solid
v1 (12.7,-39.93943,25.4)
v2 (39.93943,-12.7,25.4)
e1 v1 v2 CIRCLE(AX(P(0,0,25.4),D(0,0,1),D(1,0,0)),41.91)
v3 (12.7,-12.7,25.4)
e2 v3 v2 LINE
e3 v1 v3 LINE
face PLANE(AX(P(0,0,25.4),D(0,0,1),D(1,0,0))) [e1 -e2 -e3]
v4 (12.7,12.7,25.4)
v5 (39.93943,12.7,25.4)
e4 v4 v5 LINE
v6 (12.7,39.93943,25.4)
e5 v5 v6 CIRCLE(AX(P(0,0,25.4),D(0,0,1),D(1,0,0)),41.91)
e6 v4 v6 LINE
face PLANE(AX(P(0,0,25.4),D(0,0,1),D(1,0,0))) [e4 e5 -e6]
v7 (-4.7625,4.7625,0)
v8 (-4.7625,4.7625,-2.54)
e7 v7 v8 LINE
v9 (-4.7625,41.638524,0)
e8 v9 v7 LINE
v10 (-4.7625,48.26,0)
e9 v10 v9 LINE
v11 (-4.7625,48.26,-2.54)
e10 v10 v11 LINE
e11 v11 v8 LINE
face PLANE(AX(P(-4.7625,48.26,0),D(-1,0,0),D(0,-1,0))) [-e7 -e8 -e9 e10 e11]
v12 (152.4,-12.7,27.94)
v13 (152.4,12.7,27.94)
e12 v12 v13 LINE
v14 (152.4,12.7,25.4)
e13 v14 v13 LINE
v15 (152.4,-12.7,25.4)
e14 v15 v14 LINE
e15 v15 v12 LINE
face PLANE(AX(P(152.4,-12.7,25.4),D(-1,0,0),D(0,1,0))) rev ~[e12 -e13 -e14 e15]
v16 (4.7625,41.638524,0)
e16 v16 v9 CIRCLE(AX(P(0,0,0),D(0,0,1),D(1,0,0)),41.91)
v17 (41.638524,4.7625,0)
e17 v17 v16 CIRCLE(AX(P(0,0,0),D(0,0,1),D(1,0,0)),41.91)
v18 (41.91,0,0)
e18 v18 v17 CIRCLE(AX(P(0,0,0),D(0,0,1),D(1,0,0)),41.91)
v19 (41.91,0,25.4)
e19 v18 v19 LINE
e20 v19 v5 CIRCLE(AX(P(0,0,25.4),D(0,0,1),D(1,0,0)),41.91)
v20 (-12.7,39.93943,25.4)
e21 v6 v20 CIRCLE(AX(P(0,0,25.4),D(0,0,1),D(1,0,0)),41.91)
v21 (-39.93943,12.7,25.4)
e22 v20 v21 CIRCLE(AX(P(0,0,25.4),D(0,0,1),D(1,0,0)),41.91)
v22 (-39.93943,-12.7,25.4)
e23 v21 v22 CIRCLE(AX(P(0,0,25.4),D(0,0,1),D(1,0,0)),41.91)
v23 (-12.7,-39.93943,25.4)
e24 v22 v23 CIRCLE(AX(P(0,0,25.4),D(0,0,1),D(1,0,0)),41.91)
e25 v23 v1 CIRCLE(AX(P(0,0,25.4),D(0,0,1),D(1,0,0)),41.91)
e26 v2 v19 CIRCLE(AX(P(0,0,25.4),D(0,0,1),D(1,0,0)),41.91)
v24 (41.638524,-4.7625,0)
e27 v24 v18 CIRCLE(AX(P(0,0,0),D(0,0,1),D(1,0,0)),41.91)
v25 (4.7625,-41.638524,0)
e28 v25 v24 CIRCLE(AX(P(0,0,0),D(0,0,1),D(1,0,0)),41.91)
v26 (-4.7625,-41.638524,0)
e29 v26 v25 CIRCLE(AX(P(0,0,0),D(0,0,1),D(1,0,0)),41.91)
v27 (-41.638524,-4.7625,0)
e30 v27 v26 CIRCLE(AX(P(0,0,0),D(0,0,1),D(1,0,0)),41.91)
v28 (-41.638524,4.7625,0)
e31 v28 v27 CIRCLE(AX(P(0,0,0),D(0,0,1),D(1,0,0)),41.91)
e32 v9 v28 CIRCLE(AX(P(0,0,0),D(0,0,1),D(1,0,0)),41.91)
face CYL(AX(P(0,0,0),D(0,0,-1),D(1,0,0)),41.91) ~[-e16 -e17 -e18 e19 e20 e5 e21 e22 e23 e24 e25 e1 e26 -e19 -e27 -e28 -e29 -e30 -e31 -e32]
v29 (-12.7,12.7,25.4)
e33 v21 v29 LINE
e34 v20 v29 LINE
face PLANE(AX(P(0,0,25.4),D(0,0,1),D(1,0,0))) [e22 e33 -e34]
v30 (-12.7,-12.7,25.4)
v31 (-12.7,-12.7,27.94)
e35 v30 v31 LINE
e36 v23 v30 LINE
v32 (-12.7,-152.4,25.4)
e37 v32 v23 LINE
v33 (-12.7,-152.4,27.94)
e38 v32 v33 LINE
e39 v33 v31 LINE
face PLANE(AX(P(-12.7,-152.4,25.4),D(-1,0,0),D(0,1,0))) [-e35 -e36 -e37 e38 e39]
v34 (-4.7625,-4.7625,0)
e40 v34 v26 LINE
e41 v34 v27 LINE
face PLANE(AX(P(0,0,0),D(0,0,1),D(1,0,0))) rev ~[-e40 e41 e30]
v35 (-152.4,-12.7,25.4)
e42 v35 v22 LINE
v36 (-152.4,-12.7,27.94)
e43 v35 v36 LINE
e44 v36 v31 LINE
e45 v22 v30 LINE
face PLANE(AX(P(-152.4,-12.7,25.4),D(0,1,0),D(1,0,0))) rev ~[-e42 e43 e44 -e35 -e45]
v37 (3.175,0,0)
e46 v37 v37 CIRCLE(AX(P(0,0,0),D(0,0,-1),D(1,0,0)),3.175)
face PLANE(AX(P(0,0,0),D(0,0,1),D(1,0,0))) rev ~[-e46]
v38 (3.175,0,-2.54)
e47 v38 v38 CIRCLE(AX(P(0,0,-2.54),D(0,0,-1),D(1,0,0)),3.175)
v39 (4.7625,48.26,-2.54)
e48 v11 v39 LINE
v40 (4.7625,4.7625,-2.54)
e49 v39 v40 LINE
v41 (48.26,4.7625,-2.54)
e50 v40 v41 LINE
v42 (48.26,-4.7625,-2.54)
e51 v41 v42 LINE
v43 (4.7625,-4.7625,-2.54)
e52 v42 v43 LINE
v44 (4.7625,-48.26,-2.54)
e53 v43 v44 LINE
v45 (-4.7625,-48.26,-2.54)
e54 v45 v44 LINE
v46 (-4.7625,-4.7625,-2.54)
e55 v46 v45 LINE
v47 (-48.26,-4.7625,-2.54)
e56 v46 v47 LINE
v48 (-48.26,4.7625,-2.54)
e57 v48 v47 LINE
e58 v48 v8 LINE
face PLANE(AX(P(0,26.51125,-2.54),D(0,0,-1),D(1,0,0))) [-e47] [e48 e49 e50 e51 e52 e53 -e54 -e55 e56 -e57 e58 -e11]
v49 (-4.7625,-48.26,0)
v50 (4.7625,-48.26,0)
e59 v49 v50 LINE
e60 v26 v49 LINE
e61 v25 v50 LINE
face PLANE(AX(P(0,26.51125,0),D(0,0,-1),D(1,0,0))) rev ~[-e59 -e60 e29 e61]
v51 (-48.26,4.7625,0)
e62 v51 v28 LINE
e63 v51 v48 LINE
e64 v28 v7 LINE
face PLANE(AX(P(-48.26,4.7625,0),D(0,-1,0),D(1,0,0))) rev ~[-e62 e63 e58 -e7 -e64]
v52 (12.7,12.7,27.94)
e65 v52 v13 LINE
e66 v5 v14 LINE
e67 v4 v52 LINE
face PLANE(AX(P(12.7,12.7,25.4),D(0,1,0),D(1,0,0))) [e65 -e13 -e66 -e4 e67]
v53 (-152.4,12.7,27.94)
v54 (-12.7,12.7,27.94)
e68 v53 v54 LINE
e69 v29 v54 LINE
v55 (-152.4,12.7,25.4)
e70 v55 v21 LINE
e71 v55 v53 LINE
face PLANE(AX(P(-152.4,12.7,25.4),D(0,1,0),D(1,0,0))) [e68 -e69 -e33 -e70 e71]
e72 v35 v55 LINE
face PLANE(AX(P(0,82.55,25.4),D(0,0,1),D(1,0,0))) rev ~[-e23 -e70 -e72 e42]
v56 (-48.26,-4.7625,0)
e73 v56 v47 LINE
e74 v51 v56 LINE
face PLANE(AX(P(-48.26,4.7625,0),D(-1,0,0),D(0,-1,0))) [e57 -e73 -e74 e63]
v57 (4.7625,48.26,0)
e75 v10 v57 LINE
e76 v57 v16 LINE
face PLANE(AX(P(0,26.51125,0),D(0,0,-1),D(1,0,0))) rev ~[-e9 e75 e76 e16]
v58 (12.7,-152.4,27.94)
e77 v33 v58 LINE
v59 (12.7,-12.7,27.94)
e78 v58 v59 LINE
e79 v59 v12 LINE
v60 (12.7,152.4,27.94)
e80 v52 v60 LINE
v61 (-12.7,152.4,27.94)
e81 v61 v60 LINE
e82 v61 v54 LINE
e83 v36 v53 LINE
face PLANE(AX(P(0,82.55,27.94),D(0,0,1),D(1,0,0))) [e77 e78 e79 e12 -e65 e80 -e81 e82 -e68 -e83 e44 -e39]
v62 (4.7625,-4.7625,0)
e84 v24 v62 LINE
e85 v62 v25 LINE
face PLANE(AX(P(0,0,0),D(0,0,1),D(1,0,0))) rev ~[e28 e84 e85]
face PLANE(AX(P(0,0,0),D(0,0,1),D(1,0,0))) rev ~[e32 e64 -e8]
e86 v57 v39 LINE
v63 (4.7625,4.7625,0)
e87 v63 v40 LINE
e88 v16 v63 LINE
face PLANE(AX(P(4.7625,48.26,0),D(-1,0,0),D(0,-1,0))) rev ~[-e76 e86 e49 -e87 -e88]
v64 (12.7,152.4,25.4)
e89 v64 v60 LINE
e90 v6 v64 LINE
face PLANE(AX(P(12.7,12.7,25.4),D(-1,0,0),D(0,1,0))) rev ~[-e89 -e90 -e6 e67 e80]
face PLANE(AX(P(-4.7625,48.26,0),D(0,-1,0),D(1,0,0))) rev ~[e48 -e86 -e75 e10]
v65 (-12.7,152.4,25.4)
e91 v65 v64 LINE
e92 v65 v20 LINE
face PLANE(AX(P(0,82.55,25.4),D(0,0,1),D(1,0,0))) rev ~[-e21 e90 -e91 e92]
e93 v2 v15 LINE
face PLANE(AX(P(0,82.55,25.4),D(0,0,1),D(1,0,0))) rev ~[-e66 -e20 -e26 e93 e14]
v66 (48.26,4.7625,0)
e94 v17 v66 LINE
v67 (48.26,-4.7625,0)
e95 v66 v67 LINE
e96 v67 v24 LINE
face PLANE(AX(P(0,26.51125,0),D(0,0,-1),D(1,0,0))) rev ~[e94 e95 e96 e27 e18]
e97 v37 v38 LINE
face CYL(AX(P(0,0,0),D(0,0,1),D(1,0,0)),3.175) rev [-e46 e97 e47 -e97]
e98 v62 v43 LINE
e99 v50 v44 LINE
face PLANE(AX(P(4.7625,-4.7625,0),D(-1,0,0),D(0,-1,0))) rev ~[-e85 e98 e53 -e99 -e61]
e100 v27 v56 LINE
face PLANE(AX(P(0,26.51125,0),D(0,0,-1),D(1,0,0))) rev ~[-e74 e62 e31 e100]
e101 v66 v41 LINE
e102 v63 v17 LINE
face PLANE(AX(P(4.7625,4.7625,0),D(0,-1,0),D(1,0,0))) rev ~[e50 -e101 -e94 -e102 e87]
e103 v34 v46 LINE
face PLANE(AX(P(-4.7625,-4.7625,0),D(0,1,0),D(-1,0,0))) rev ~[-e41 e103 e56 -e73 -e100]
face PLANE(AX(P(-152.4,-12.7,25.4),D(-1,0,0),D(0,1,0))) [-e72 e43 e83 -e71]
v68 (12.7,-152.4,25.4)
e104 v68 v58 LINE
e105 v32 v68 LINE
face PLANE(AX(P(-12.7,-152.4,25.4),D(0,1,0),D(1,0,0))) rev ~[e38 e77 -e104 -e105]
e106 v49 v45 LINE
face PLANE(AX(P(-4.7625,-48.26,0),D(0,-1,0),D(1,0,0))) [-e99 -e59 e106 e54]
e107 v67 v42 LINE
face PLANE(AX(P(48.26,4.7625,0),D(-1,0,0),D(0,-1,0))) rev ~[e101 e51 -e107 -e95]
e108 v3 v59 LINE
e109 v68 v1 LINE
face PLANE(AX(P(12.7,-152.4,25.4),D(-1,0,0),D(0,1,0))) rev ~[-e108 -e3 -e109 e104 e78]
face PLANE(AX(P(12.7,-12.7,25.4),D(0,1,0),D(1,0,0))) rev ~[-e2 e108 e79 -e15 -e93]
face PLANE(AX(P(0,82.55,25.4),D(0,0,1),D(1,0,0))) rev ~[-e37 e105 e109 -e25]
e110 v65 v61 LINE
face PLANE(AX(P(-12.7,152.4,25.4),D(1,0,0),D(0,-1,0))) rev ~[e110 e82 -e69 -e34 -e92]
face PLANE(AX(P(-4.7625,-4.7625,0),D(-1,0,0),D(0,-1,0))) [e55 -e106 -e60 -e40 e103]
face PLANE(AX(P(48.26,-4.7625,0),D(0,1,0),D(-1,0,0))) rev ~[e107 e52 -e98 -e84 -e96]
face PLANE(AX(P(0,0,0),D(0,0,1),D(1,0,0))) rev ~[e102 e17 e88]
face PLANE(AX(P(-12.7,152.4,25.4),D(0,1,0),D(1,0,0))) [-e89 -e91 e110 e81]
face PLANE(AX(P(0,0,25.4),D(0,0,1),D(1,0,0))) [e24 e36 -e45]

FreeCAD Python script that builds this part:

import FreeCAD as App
import Part
import Sketcher

V = App.Vector
Q = App.Units.Quantity


def add_polygon(sketch, points):
    """Adds a closed chain of lines whose ends are joined by coincident constraints."""
    first, n = sketch.GeometryCount, len(points)
    for a, b in zip(points, points[1:] + points[:1]):
        sketch.addGeometry(Part.LineSegment(App.Vector(*a, 0), App.Vector(*b, 0)), False)
    for i in range(n):
        sketch.addConstraint(Sketcher.Constraint("Coincident", first + i, 2, first + (i + 1) % n, 1))

doc = App.newDocument("Part")
body = doc.addObject("PartDesign::Body", "Body")

# Sketch on XY plane
sketch1 = doc.addObject("Sketcher::SketchObject", "Sketch")
body.addObject(sketch1)
sketch1.AttachmentSupport = (doc.XY_Plane, [""])
sketch1.MapMode = "FlatFace"
sketch1.addGeometry(Part.Circle(V(0, 0, 0), V(0, 0, 1), 41.91), False)
sketch1.addConstraint([
    Sketcher.Constraint("Coincident", 0, 3, -1, 1),
    Sketcher.Constraint("Diameter", 0, Q("3.3 in")),
])
pad1 = doc.addObject("PartDesign::Pad", "Pad")
body.addObject(pad1)
pad1.Profile = sketch1
pad1.Length = Q("1 in")

# Sketch on XY plane
sketch2 = doc.addObject("Sketcher::SketchObject", "Sketch001")
body.addObject(sketch2)
sketch2.AttachmentSupport = (doc.XY_Plane, [""])
sketch2.MapMode = "FlatFace"
sketch2.AttachmentOffset = App.Placement(V(0, 0, 1 * 25.4), App.Rotation())
add_polygon(sketch2, [(-12.7, 152.4), (-12.7, 12.7), (-152.4, 12.7), (-152.4, -12.7), (-12.7, -12.7), (-12.7, -152.4), (12.7, -152.4), (12.7, -12.7), (152.4, -12.7), (152.4, 12.7), (12.7, 12.7), (12.7, 152.4)])  # lines 0-11
sketch2.addConstraint([
    Sketcher.Constraint("Vertical", 0),
    Sketcher.Constraint("Horizontal", 1),
    Sketcher.Constraint("Vertical", 2),
    Sketcher.Constraint("Horizontal", 3),
    Sketcher.Constraint("Vertical", 4),
    Sketcher.Constraint("Horizontal", 5),
    Sketcher.Constraint("Vertical", 6),
    Sketcher.Constraint("Horizontal", 7),
    Sketcher.Constraint("Vertical", 8),
    Sketcher.Constraint("Horizontal", 9),
    Sketcher.Constraint("Vertical", 10),
    Sketcher.Constraint("Horizontal", 11),
    Sketcher.Constraint("Symmetric", 0, 2, 6, 2, -1, 1),
    Sketcher.Constraint("Symmetric", 2, 2, 8, 2, -1, 1),
    Sketcher.Constraint("Symmetric", 4, 2, 10, 2, -1, 1),
    Sketcher.Constraint("Symmetric", 3, 2, 6, 2, -2),
    Sketcher.Constraint("Equal", 9, 0),
    Sketcher.Constraint("Equal", 11, 2),
    Sketcher.Constraint("DistanceX", 5, 1, 5, 2, Q("1 in")),
    Sketcher.Constraint("DistanceX", 1, 2, 1, 1, Q("5.5 in")),
])
pad2 = doc.addObject("PartDesign::Pad", "Pad001")
body.addObject(pad2)
pad2.Profile = sketch2
pad2.Length = Q("0.1 in")

# Sketch on XY plane
sketch3 = doc.addObject("Sketcher::SketchObject", "Sketch002")
body.addObject(sketch3)
sketch3.AttachmentSupport = (doc.XY_Plane, [""])
sketch3.MapMode = "FlatFace"
add_polygon(sketch3, [(-4.7625, 4.7625), (-4.7625, 48.26), (4.7625, 48.26), (4.7625, 4.7625), (48.26, 4.7625), (48.26, -4.7625), (4.7625, -4.7625), (4.7625, -48.26), (-4.7625, -48.26), (-4.7625, -4.7625), (-48.26, -4.7625), (-48.26, 4.7625)])  # lines 0-11
sketch3.addGeometry(Part.Circle(V(0, 0, 0), V(0, 0, 1), 3.175), False)  # 12
sketch3.addConstraint([
    Sketcher.Constraint("Vertical", 0),
    Sketcher.Constraint("Horizontal", 1),
    Sketcher.Constraint("Vertical", 2),
    Sketcher.Constraint("Horizontal", 3),
    Sketcher.Constraint("Vertical", 4),
    Sketcher.Constraint("Horizontal", 5),
    Sketcher.Constraint("Vertical", 6),
    Sketcher.Constraint("Horizontal", 7),
    Sketcher.Constraint("Vertical", 8),
    Sketcher.Constraint("Horizontal", 9),
    Sketcher.Constraint("Vertical", 10),
    Sketcher.Constraint("Horizontal", 11),
    Sketcher.Constraint("Coincident", 12, 3, -1, 1),
    Sketcher.Constraint("Symmetric", 0, 2, 6, 2, -1, 1),
    Sketcher.Constraint("Symmetric", 2, 2, 8, 2, -1, 1),
    Sketcher.Constraint("Symmetric", 4, 2, 10, 2, -1, 1),
    Sketcher.Constraint("Symmetric", 5, 2, 8, 2, -2),
    Sketcher.Constraint("Equal", 11, 0),
    Sketcher.Constraint("Equal", 7, 4),
    Sketcher.Constraint("Diameter", 12, Q("0.25 in")),
    Sketcher.Constraint("DistanceY", -1, 1, 0, 2, Q("1.9 in")),
    Sketcher.Constraint("DistanceX", 1, 1, 1, 2, Q("0.375 in")),
])
pad3 = doc.addObject("PartDesign::Pad", "Pad002")
body.addObject(pad3)
pad3.Profile = sketch3
pad3.Length = Q("0.1 in")
pad3.Reversed = True

doc.recompute()
